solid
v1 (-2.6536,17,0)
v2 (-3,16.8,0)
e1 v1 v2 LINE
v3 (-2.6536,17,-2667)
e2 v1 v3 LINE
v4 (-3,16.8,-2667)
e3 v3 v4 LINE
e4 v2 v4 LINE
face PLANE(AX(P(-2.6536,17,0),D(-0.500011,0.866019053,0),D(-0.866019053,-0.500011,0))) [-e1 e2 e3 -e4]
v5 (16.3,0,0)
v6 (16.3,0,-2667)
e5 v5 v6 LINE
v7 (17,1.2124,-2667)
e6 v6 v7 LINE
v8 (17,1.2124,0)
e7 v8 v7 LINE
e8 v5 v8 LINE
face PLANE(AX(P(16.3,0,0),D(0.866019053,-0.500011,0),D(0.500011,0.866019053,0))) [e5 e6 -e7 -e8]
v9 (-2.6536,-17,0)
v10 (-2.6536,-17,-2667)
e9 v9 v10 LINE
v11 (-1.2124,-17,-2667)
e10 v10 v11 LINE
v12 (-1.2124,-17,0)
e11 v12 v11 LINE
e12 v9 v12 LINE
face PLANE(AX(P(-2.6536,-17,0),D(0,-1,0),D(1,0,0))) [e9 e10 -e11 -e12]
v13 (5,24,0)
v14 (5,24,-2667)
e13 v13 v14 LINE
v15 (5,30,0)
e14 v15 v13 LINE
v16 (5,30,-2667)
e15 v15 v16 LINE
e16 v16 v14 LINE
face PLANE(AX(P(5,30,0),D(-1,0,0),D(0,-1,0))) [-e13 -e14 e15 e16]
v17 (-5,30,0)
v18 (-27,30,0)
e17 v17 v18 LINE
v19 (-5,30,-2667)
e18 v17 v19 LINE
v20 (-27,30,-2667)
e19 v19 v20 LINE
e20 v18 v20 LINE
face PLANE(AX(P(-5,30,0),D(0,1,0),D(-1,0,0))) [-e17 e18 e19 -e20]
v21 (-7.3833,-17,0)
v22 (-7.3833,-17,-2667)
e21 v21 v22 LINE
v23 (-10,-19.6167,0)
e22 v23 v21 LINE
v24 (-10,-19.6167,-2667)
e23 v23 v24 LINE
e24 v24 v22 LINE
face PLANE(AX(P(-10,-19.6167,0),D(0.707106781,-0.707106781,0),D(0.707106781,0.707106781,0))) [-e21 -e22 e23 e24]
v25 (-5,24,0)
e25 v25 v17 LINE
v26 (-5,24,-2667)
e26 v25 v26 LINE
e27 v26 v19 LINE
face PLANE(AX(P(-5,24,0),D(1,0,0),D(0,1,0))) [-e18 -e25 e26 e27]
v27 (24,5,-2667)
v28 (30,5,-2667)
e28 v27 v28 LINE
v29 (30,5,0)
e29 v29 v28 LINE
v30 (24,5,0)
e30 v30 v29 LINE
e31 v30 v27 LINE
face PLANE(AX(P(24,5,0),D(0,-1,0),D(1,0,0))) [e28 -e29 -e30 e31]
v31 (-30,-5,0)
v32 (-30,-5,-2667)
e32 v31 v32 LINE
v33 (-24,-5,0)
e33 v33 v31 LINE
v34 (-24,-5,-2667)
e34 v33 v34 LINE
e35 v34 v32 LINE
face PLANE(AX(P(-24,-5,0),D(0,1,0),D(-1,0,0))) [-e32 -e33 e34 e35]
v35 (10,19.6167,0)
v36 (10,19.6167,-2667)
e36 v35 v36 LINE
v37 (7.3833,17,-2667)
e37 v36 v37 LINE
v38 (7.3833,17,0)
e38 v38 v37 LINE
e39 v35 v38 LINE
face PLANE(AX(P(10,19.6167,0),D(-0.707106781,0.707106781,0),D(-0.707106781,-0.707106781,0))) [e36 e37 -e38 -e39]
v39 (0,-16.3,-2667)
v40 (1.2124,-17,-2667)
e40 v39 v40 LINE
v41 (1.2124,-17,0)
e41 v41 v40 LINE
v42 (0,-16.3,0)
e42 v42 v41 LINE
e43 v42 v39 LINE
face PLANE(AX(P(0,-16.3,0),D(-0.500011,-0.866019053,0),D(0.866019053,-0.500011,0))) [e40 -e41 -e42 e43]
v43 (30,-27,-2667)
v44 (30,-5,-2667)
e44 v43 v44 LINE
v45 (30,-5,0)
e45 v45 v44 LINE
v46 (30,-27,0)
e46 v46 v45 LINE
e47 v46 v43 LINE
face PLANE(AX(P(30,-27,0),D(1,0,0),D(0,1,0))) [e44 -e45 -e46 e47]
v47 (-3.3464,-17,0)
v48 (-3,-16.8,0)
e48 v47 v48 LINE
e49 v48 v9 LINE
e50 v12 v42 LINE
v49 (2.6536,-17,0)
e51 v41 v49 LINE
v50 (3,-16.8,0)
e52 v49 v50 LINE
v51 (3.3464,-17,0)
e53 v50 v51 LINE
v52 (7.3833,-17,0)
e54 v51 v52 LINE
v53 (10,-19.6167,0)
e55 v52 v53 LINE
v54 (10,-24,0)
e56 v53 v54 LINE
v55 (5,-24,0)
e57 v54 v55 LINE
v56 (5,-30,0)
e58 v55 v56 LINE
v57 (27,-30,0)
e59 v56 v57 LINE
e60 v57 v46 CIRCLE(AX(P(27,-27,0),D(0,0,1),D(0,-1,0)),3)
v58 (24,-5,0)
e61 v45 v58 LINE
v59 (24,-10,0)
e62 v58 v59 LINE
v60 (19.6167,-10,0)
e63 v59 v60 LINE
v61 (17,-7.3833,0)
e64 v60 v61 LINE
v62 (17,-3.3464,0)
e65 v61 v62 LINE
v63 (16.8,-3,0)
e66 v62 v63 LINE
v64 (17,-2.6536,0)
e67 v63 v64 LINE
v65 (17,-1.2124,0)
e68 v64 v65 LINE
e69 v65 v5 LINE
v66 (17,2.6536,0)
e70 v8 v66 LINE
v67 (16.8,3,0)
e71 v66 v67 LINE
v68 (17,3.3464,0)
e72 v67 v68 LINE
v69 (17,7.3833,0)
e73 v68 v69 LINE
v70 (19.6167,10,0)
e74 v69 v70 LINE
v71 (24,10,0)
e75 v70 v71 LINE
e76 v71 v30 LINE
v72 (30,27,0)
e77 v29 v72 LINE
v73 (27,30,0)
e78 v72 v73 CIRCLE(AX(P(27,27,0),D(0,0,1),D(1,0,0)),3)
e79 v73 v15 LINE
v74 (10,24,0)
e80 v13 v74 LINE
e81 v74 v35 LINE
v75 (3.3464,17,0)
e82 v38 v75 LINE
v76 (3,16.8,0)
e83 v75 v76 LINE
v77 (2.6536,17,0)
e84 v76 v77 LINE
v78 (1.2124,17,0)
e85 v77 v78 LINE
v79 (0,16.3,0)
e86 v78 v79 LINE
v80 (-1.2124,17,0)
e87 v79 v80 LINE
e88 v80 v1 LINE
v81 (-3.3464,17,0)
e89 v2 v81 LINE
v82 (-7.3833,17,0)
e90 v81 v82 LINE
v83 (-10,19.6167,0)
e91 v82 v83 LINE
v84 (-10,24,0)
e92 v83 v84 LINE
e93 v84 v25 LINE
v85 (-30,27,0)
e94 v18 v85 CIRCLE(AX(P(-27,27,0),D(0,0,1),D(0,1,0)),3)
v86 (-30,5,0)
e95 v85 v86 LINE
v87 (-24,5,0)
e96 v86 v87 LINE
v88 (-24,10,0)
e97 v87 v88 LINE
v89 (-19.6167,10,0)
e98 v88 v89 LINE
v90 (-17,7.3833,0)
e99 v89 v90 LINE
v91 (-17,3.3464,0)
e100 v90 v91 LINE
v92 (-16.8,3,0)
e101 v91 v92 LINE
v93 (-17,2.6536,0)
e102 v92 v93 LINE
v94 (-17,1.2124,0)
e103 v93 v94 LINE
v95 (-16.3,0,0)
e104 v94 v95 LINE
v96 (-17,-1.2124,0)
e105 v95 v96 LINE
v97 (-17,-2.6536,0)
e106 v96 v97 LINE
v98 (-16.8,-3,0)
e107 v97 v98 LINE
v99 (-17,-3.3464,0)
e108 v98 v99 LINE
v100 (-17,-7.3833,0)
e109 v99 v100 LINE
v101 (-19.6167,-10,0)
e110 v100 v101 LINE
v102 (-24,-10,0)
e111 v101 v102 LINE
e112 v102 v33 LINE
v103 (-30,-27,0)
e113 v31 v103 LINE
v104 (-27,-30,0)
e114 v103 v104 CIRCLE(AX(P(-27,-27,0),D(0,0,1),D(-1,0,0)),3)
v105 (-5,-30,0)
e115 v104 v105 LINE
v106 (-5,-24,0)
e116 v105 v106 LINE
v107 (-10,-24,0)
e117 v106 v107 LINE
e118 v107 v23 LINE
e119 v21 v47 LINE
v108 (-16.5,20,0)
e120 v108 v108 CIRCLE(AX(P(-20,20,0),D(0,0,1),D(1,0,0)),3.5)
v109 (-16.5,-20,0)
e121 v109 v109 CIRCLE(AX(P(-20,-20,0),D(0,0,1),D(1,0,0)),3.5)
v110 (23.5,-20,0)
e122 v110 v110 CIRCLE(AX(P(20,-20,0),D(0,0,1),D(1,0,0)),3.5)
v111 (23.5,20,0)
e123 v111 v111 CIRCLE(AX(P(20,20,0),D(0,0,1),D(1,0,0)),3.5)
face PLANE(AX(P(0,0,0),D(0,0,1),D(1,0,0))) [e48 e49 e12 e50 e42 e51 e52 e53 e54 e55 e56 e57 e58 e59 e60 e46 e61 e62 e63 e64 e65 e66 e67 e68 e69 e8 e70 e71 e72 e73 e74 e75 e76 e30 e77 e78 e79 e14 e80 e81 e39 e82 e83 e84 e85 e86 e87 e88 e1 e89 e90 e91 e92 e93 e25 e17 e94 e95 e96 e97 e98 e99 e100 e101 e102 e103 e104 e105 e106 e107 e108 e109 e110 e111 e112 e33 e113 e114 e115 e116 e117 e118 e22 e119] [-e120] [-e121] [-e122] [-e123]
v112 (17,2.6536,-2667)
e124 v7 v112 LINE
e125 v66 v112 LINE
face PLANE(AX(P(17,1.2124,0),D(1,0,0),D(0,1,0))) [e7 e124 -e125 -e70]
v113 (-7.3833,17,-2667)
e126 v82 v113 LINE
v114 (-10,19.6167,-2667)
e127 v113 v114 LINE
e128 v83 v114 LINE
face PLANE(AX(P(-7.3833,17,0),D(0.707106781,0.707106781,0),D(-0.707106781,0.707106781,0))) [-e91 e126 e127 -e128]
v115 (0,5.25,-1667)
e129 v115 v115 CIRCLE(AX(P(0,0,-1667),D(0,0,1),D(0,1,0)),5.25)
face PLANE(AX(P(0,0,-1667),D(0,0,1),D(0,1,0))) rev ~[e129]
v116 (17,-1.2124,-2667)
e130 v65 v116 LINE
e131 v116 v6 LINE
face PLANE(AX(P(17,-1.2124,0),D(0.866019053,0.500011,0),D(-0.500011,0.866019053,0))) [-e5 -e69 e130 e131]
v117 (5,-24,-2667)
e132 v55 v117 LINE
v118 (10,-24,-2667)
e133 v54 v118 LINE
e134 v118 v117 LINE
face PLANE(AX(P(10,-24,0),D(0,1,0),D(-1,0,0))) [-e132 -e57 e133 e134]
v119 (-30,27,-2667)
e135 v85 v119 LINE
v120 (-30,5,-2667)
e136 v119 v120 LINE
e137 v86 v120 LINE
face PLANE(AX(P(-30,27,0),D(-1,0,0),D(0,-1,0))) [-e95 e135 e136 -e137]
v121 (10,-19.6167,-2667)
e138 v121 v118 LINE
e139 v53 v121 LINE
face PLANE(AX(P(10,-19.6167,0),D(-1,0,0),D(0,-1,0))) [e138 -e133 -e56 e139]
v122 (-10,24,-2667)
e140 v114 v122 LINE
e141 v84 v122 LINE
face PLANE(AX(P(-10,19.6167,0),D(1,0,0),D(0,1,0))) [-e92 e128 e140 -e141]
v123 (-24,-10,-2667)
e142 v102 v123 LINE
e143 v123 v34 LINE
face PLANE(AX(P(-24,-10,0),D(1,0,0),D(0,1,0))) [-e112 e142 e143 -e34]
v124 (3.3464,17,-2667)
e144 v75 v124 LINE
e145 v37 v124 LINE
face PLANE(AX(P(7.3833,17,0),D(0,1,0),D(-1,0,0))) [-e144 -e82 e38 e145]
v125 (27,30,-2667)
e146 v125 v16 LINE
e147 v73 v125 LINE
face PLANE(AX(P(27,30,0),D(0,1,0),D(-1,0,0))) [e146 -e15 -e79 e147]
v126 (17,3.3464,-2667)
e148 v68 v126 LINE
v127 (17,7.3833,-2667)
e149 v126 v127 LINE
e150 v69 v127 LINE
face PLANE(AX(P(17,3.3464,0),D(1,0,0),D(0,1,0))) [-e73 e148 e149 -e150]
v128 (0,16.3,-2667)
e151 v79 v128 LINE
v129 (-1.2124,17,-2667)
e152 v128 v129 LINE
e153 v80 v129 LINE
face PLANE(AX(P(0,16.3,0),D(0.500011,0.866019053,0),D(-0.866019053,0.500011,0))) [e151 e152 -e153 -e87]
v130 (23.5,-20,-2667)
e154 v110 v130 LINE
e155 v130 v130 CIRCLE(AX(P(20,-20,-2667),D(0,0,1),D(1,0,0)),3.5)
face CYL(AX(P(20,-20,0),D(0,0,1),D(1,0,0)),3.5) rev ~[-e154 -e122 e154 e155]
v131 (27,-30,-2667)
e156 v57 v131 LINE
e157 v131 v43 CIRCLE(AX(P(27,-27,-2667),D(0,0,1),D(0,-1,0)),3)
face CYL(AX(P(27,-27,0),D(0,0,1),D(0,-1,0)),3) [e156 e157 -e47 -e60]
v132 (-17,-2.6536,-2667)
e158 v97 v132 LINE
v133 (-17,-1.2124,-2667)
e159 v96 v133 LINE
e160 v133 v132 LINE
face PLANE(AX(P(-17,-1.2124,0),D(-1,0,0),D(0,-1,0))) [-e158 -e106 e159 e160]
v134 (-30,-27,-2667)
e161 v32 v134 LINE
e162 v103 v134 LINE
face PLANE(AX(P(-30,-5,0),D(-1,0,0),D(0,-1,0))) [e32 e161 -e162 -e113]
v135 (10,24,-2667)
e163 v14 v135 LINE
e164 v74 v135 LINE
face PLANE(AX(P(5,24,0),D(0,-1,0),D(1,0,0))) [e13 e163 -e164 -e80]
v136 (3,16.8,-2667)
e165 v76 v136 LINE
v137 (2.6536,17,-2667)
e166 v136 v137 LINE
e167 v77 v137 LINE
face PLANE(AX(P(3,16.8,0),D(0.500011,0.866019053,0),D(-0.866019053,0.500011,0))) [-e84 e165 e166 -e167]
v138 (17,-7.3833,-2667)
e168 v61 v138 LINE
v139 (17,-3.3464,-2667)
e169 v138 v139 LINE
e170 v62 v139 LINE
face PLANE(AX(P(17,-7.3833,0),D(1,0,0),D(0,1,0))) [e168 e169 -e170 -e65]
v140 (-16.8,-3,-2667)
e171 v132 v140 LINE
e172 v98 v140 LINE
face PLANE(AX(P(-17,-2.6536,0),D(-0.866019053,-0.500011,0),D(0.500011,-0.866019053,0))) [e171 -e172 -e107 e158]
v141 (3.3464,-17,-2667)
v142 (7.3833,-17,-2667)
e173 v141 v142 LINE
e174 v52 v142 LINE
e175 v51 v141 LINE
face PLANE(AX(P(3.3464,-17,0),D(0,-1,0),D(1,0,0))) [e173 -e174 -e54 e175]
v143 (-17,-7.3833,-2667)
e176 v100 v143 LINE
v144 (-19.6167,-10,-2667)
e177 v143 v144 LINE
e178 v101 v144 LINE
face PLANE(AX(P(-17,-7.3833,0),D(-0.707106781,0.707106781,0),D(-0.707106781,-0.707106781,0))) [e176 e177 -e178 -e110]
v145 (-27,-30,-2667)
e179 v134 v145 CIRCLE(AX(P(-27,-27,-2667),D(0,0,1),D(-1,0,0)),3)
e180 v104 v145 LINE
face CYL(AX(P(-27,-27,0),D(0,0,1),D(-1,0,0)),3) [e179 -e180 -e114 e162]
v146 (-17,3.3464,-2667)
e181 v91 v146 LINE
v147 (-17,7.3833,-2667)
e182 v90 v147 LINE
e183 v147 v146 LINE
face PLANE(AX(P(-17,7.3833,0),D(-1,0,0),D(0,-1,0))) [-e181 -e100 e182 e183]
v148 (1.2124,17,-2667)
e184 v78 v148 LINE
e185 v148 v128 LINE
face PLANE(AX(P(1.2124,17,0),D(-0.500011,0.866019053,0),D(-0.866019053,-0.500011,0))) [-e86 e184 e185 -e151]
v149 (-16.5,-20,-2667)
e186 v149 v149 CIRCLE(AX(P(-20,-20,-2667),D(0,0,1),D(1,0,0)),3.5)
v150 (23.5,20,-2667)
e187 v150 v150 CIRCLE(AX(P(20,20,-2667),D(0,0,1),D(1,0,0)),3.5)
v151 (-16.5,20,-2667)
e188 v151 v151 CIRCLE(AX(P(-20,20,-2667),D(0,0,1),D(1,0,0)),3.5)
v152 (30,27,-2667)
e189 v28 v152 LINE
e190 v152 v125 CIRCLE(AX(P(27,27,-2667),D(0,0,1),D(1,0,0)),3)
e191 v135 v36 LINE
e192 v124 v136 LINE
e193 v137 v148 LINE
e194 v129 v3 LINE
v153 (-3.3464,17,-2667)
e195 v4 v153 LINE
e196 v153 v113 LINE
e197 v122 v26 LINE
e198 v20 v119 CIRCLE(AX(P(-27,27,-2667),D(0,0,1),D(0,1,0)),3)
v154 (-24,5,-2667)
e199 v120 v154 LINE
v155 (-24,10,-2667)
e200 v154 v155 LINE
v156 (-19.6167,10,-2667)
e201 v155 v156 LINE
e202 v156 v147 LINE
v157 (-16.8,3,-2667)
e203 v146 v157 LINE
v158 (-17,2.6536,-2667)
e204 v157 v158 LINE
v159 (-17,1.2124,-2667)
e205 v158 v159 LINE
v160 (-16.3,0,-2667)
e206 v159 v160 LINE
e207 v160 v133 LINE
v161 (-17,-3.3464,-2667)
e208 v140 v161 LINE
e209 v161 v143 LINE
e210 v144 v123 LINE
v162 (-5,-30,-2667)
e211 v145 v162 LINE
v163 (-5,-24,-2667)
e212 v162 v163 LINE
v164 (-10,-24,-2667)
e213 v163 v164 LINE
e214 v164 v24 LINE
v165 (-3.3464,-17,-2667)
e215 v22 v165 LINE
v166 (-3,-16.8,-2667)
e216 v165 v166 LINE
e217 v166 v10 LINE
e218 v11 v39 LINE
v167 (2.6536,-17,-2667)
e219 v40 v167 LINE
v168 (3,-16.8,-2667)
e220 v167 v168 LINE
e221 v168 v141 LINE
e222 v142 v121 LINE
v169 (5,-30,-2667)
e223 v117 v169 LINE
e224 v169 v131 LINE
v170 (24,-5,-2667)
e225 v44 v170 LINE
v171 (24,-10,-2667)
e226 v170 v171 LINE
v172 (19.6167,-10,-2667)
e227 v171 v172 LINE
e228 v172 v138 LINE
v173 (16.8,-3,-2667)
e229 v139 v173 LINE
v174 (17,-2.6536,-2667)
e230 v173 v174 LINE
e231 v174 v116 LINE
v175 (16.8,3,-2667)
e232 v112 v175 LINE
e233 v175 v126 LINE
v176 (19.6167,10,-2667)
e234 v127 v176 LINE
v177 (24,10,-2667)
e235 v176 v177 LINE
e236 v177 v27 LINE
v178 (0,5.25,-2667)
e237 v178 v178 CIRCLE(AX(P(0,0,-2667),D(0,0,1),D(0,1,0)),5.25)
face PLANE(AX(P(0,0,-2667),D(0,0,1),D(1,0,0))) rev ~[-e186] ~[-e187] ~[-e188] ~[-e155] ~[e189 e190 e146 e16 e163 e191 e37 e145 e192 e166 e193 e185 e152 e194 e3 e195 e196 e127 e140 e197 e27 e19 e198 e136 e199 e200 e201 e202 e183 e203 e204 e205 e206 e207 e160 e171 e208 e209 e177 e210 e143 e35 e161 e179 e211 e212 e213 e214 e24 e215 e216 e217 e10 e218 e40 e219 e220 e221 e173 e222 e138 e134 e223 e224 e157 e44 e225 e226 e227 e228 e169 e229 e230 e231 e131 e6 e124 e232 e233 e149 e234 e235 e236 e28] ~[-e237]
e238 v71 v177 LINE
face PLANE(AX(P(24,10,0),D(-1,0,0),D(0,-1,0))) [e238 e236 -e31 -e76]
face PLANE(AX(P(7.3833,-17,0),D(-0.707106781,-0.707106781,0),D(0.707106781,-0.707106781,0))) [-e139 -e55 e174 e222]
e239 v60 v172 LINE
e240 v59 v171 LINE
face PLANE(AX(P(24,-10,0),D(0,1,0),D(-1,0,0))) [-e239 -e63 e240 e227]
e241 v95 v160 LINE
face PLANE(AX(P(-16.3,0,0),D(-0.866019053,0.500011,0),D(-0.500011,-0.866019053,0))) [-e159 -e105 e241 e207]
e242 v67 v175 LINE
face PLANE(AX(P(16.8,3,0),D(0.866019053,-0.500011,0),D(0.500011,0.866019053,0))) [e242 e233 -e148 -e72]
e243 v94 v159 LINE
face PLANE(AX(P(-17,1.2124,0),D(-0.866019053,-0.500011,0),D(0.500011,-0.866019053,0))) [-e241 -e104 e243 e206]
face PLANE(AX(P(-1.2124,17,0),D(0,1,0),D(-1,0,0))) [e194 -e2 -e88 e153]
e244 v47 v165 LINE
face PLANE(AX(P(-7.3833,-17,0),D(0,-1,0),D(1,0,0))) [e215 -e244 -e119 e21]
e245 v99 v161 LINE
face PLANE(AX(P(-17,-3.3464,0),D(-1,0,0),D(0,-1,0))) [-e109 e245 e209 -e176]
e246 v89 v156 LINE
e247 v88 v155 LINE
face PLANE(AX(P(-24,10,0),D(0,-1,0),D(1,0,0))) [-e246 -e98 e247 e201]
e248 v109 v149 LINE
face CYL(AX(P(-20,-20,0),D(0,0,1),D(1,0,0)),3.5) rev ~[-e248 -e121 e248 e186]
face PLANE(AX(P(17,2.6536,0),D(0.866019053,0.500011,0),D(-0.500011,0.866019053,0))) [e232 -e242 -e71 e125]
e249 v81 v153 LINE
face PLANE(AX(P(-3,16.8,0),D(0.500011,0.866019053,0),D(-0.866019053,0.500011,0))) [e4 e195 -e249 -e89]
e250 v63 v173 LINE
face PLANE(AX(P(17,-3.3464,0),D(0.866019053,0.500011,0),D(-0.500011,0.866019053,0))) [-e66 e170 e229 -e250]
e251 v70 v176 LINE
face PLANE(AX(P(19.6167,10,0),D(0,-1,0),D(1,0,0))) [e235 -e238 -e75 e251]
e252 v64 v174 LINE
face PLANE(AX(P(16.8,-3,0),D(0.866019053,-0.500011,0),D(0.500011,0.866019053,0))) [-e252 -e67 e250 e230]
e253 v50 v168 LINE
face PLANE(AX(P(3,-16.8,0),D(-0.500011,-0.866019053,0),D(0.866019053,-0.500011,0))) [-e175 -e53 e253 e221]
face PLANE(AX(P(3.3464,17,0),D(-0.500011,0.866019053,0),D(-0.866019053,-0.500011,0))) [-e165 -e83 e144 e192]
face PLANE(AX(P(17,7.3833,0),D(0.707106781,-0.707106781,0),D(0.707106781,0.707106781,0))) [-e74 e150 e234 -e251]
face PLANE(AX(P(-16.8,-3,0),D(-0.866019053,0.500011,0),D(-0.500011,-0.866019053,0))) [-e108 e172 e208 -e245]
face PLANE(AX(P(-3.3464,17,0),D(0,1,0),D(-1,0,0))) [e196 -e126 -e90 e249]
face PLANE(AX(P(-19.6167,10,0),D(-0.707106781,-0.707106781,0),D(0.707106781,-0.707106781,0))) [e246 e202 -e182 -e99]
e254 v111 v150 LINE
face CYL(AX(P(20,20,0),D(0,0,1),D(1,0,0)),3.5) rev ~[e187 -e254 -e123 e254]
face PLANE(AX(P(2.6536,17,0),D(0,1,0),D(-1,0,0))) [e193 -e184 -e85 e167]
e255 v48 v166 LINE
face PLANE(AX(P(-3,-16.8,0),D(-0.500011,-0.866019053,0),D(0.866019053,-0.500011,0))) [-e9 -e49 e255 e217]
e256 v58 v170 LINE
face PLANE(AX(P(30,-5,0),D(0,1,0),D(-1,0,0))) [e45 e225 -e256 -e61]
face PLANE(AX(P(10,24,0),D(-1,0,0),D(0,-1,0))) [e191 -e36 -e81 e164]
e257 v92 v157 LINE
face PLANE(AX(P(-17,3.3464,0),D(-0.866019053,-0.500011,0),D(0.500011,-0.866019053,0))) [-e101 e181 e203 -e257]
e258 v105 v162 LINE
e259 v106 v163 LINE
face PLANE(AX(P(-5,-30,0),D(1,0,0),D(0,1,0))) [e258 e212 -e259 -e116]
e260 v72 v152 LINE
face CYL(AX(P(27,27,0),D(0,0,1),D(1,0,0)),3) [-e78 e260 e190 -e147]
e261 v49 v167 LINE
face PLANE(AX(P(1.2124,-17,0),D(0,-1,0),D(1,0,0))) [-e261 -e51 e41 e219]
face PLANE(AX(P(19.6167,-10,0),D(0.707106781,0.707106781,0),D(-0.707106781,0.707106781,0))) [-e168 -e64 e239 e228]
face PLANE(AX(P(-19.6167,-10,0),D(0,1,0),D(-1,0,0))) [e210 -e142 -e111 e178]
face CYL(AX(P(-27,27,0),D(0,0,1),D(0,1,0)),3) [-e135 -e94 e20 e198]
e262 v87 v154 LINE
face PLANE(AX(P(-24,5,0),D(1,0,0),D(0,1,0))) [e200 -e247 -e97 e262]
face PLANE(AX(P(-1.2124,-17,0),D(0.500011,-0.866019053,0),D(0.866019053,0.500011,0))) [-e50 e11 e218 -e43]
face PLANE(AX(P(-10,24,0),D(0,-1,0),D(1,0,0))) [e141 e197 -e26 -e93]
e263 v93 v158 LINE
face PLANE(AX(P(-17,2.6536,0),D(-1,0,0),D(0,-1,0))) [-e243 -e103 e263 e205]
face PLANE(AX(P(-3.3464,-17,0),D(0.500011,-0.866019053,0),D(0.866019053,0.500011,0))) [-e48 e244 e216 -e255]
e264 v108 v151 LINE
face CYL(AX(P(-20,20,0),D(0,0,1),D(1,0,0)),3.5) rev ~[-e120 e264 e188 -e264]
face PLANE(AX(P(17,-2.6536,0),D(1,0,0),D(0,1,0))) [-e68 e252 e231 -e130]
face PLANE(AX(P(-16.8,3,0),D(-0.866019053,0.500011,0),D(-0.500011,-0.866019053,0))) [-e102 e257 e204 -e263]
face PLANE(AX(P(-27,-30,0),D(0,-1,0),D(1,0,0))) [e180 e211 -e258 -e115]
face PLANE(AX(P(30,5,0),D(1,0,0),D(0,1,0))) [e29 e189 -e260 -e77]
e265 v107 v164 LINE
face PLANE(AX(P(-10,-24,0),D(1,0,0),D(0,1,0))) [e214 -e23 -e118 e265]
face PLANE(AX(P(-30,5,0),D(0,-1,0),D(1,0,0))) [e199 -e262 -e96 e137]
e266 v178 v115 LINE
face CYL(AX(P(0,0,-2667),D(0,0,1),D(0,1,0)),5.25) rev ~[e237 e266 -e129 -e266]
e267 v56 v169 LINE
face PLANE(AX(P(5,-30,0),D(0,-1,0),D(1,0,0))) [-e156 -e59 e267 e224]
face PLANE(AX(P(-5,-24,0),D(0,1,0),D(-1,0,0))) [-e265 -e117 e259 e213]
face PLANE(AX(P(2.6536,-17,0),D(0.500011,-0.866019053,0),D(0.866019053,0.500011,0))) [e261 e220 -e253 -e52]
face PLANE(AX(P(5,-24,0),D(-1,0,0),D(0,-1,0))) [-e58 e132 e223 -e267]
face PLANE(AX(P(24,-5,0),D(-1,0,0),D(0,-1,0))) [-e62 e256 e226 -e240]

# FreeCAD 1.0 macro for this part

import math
import FreeCAD as App
import Part
import Sketcher
from FreeCAD import Vector
Q = App.Units.Quantity

doc = App.newDocument("Part")
body = doc.addObject("PartDesign::Body", "Body")

# Sketch on XY plane
sketch1 = body.newObject("Sketcher::SketchObject", "Sketch")
sketch1.AttachmentSupport = (doc.getObject("XY_Plane"), [""])
sketch1.MapMode = "FlatFace"
sketch1.addGeometry(Part.LineSegment(Vector(-30, -5, 0), Vector(-30, -27, 0)), False)
sketch1.addGeometry(Part.ArcOfCircle(Part.Circle(Vector(-27, -27, 0), Vector(0, 0, 1), 3), math.radians(180), math.radians(270)), False)
sketch1.addGeometry(Part.LineSegment(Vector(-27, -30, 0), Vector(-5, -30, 0)), False)
sketch1.addGeometry(Part.LineSegment(Vector(-5, -30, 0), Vector(-5, -24, 0)), False)
sketch1.addGeometry(Part.LineSegment(Vector(-5, -24, 0), Vector(-10, -24, 0)), False)
sketch1.addGeometry(Part.LineSegment(Vector(-10, -24, 0), Vector(-10, -19.62, 0)), False)
sketch1.addGeometry(Part.LineSegment(Vector(-10, -19.62, 0), Vector(-7.38, -17, 0)), False)
sketch1.addGeometry(Part.LineSegment(Vector(-7.38, -17, 0), Vector(-3.35, -17, 0)), False)
sketch1.addGeometry(Part.LineSegment(Vector(-3.35, -17, 0), Vector(-3, -16.8, 0)), False)
sketch1.addGeometry(Part.LineSegment(Vector(-3, -16.8, 0), Vector(-2.65, -17, 0)), False)
sketch1.addGeometry(Part.LineSegment(Vector(-2.65, -17, 0), Vector(-1.21, -17, 0)), False)
sketch1.addGeometry(Part.LineSegment(Vector(-1.21, -17, 0), Vector(0, -16.3, 0)), False)
sketch1.addGeometry(Part.LineSegment(Vector(0, -16.3, 0), Vector(1.21, -17, 0)), False)
sketch1.addGeometry(Part.LineSegment(Vector(1.21, -17, 0), Vector(2.65, -17, 0)), False)
sketch1.addGeometry(Part.LineSegment(Vector(2.65, -17, 0), Vector(3, -16.8, 0)), False)
sketch1.addGeometry(Part.LineSegment(Vector(3, -16.8, 0), Vector(3.35, -17, 0)), False)
sketch1.addGeometry(Part.LineSegment(Vector(3.35, -17, 0), Vector(7.38, -17, 0)), False)
sketch1.addGeometry(Part.LineSegment(Vector(7.38, -17, 0), Vector(10, -19.62, 0)), False)
sketch1.addGeometry(Part.LineSegment(Vector(10, -19.62, 0), Vector(10, -24, 0)), False)
sketch1.addGeometry(Part.LineSegment(Vector(10, -24, 0), Vector(5, -24, 0)), False)
sketch1.addGeometry(Part.LineSegment(Vector(5, -24, 0), Vector(5, -30, 0)), False)
sketch1.addGeometry(Part.LineSegment(Vector(5, -30, 0), Vector(27, -30, 0)), False)
sketch1.addGeometry(Part.ArcOfCircle(Part.Circle(Vector(27, -27, 0), Vector(0, 0, 1), 3), math.radians(-90), math.radians(0)), False)
sketch1.addGeometry(Part.LineSegment(Vector(30, -27, 0), Vector(30, -5, 0)), False)
sketch1.addGeometry(Part.LineSegment(Vector(30, -5, 0), Vector(24, -5, 0)), False)
sketch1.addGeometry(Part.LineSegment(Vector(24, -5, 0), Vector(24, -10, 0)), False)
sketch1.addGeometry(Part.LineSegment(Vector(24, -10, 0), Vector(19.62, -10, 0)), False)
sketch1.addGeometry(Part.LineSegment(Vector(19.62, -10, 0), Vector(17, -7.38, 0)), False)
sketch1.addGeometry(Part.LineSegment(Vector(17, -7.38, 0), Vector(17, -3.35, 0)), False)
sketch1.addGeometry(Part.LineSegment(Vector(17, -3.35, 0), Vector(16.8, -3, 0)), False)
sketch1.addGeometry(Part.LineSegment(Vector(16.8, -3, 0), Vector(17, -2.65, 0)), False)
sketch1.addGeometry(Part.LineSegment(Vector(17, -2.65, 0), Vector(17, -1.21, 0)), False)
sketch1.addGeometry(Part.LineSegment(Vector(17, -1.21, 0), Vector(16.3, 0, 0)), False)
sketch1.addGeometry(Part.LineSegment(Vector(16.3, 0, 0), Vector(17, 1.21, 0)), False)
sketch1.addGeometry(Part.LineSegment(Vector(17, 1.21, 0), Vector(17, 2.65, 0)), False)
sketch1.addGeometry(Part.LineSegment(Vector(17, 2.65, 0), Vector(16.8, 3, 0)), False)
sketch1.addGeometry(Part.LineSegment(Vector(16.8, 3, 0), Vector(17, 3.35, 0)), False)
sketch1.addGeometry(Part.LineSegment(Vector(17, 3.35, 0), Vector(17, 7.38, 0)), False)
sketch1.addGeometry(Part.LineSegment(Vector(17, 7.38, 0), Vector(19.62, 10, 0)), False)
sketch1.addGeometry(Part.LineSegment(Vector(19.62, 10, 0), Vector(24, 10, 0)), False)
sketch1.addGeometry(Part.LineSegment(Vector(24, 10, 0), Vector(24, 5, 0)), False)
sketch1.addGeometry(Part.LineSegment(Vector(24, 5, 0), Vector(30, 5, 0)), False)
sketch1.addGeometry(Part.LineSegment(Vector(30, 5, 0), Vector(30, 27, 0)), False)
sketch1.addGeometry(Part.ArcOfCircle(Part.Circle(Vector(27, 27, 0), Vector(0, 0, 1), 3), math.radians(0), math.radians(90)), False)
sketch1.addGeometry(Part.LineSegment(Vector(27, 30, 0), Vector(5, 30, 0)), False)
sketch1.addGeometry(Part.LineSegment(Vector(5, 30, 0), Vector(5, 24, 0)), False)
sketch1.addGeometry(Part.LineSegment(Vector(5, 24, 0), Vector(10, 24, 0)), False)
sketch1.addGeometry(Part.LineSegment(Vector(10, 24, 0), Vector(10, 19.62, 0)), False)
sketch1.addGeometry(Part.LineSegment(Vector(10, 19.62, 0), Vector(7.38, 17, 0)), False)
sketch1.addGeometry(Part.LineSegment(Vector(7.38, 17, 0), Vector(3.35, 17, 0)), False)
sketch1.addGeometry(Part.LineSegment(Vector(3.35, 17, 0), Vector(3, 16.8, 0)), False)
sketch1.addGeometry(Part.LineSegment(Vector(3, 16.8, 0), Vector(2.65, 17, 0)), False)
sketch1.addGeometry(Part.LineSegment(Vector(2.65, 17, 0), Vector(1.21, 17, 0)), False)
sketch1.addGeometry(Part.LineSegment(Vector(1.21, 17, 0), Vector(0, 16.3, 0)), False)
sketch1.addGeometry(Part.LineSegment(Vector(0, 16.3, 0), Vector(-1.21, 17, 0)), False)
sketch1.addGeometry(Part.LineSegment(Vector(-1.21, 17, 0), Vector(-2.65, 17, 0)), False)
sketch1.addGeometry(Part.LineSegment(Vector(-2.65, 17, 0), Vector(-3, 16.8, 0)), False)
sketch1.addGeometry(Part.LineSegment(Vector(-3, 16.8, 0), Vector(-3.35, 17, 0)), False)
sketch1.addGeometry(Part.LineSegment(Vector(-3.35, 17, 0), Vector(-7.38, 17, 0)), False)
sketch1.addGeometry(Part.LineSegment(Vector(-7.38, 17, 0), Vector(-10, 19.62, 0)), False)
sketch1.addGeometry(Part.LineSegment(Vector(-10, 19.62, 0), Vector(-10, 24, 0)), False)
sketch1.addGeometry(Part.LineSegment(Vector(-10, 24, 0), Vector(-5, 24, 0)), False)
sketch1.addGeometry(Part.LineSegment(Vector(-5, 24, 0), Vector(-5, 30, 0)), False)
sketch1.addGeometry(Part.LineSegment(Vector(-5, 30, 0), Vector(-27, 30, 0)), False)
sketch1.addGeometry(Part.ArcOfCircle(Part.Circle(Vector(-27, 27, 0), Vector(0, 0, 1), 3), math.radians(90), math.radians(180)), False)
sketch1.addGeometry(Part.LineSegment(Vector(-30, 27, 0), Vector(-30, 5, 0)), False)
sketch1.addGeometry(Part.LineSegment(Vector(-30, 5, 0), Vector(-24, 5, 0)), False)
sketch1.addGeometry(Part.LineSegment(Vector(-24, 5, 0), Vector(-24, 10, 0)), False)
sketch1.addGeometry(Part.LineSegment(Vector(-24, 10, 0), Vector(-19.62, 10, 0)), False)
sketch1.addGeometry(Part.LineSegment(Vector(-19.62, 10, 0), Vector(-17, 7.38, 0)), False)
sketch1.addGeometry(Part.LineSegment(Vector(-17, 7.38, 0), Vector(-17, 3.35, 0)), False)
sketch1.addGeometry(Part.LineSegment(Vector(-17, 3.35, 0), Vector(-16.8, 3, 0)), False)
sketch1.addGeometry(Part.LineSegment(Vector(-16.8, 3, 0), Vector(-17, 2.65, 0)), False)
sketch1.addGeometry(Part.LineSegment(Vector(-17, 2.65, 0), Vector(-17, 1.21, 0)), False)
sketch1.addGeometry(Part.LineSegment(Vector(-17, 1.21, 0), Vector(-16.3, 0, 0)), False)
sketch1.addGeometry(Part.LineSegment(Vector(-16.3, 0, 0), Vector(-17, -1.21, 0)), False)
sketch1.addGeometry(Part.LineSegment(Vector(-17, -1.21, 0), Vector(-17, -2.65, 0)), False)
sketch1.addGeometry(Part.LineSegment(Vector(-17, -2.65, 0), Vector(-16.8, -3, 0)), False)
sketch1.addGeometry(Part.LineSegment(Vector(-16.8, -3, 0), Vector(-17, -3.35, 0)), False)
sketch1.addGeometry(Part.LineSegment(Vector(-17, -3.35, 0), Vector(-17, -7.38, 0)), False)
sketch1.addGeometry(Part.LineSegment(Vector(-17, -7.38, 0), Vector(-19.62, -10, 0)), False)
sketch1.addGeometry(Part.LineSegment(Vector(-19.62, -10, 0), Vector(-24, -10, 0)), False)
sketch1.addGeometry(Part.LineSegment(Vector(-24, -10, 0), Vector(-24, -5, 0)), False)
sketch1.addGeometry(Part.LineSegment(Vector(-24, -5, 0), Vector(-30, -5, 0)), False)
sketch1.addGeometry(Part.Circle(Vector(-20, -20, 0), Vector(0, 0, 1), 3.5), False)
sketch1.addGeometry(Part.Circle(Vector(20, -20, 0), Vector(0, 0, 1), 3.5), False)
sketch1.addGeometry(Part.Circle(Vector(-20, 20, 0), Vector(0, 0, 1), 3.5), False)
sketch1.addGeometry(Part.Circle(Vector(20, 20, 0), Vector(0, 0, 1), 3.5), False)
sketch1.addConstraint(Sketcher.Constraint("Tangent", 0, 2, 1, 1))
sketch1.addConstraint(Sketcher.Constraint("Tangent", 1, 2, 2, 1))
sketch1.addConstraint(Sketcher.Constraint("Coincident", 2, 2, 3, 1))
sketch1.addConstraint(Sketcher.Constraint("Coincident", 3, 2, 4, 1))
sketch1.addConstraint(Sketcher.Constraint("Coincident", 4, 2, 5, 1))
sketch1.addConstraint(Sketcher.Constraint("Coincident", 5, 2, 6, 1))
sketch1.addConstraint(Sketcher.Constraint("Coincident", 6, 2, 7, 1))
sketch1.addConstraint(Sketcher.Constraint("Coincident", 7, 2, 8, 1))
sketch1.addConstraint(Sketcher.Constraint("Coincident", 8, 2, 9, 1))
sketch1.addConstraint(Sketcher.Constraint("Coincident", 9, 2, 10, 1))
sketch1.addConstraint(Sketcher.Constraint("Coincident", 10, 2, 11, 1))
sketch1.addConstraint(Sketcher.Constraint("Coincident", 11, 2, 12, 1))
sketch1.addConstraint(Sketcher.Constraint("Coincident", 12, 2, 13, 1))
sketch1.addConstraint(Sketcher.Constraint("Coincident", 13, 2, 14, 1))
sketch1.addConstraint(Sketcher.Constraint("Coincident", 14, 2, 15, 1))
sketch1.addConstraint(Sketcher.Constraint("Coincident", 15, 2, 16, 1))
sketch1.addConstraint(Sketcher.Constraint("Coincident", 16, 2, 17, 1))
sketch1.addConstraint(Sketcher.Constraint("Coincident", 17, 2, 18, 1))
sketch1.addConstraint(Sketcher.Constraint("Coincident", 18, 2, 19, 1))
sketch1.addConstraint(Sketcher.Constraint("Coincident", 19, 2, 20, 1))
sketch1.addConstraint(Sketcher.Constraint("Coincident", 20, 2, 21, 1))
sketch1.addConstraint(Sketcher.Constraint("Tangent", 21, 2, 22, 1))
sketch1.addConstraint(Sketcher.Constraint("Tangent", 22, 2, 23, 1))
sketch1.addConstraint(Sketcher.Constraint("Coincident", 23, 2, 24, 1))
sketch1.addConstraint(Sketcher.Constraint("Coincident", 24, 2, 25, 1))
sketch1.addConstraint(Sketcher.Constraint("Coincident", 25, 2, 26, 1))
sketch1.addConstraint(Sketcher.Constraint("Coincident", 26, 2, 27, 1))
sketch1.addConstraint(Sketcher.Constraint("Coincident", 27, 2, 28, 1))
sketch1.addConstraint(Sketcher.Constraint("Coincident", 28, 2, 29, 1))
sketch1.addConstraint(Sketcher.Constraint("Coincident", 29, 2, 30, 1))
sketch1.addConstraint(Sketcher.Constraint("Coincident", 30, 2, 31, 1))
sketch1.addConstraint(Sketcher.Constraint("Coincident", 31, 2, 32, 1))
sketch1.addConstraint(Sketcher.Constraint("Coincident", 32, 2, 33, 1))
sketch1.addConstraint(Sketcher.Constraint("Coincident", 33, 2, 34, 1))
sketch1.addConstraint(Sketcher.Constraint("Coincident", 34, 2, 35, 1))
sketch1.addConstraint(Sketcher.Constraint("Coincident", 35, 2, 36, 1))
sketch1.addConstraint(Sketcher.Constraint("Coincident", 36, 2, 37, 1))
sketch1.addConstraint(Sketcher.Constraint("Coincident", 37, 2, 38, 1))
sketch1.addConstraint(Sketcher.Constraint("Coincident", 38, 2, 39, 1))
sketch1.addConstraint(Sketcher.Constraint("Coincident", 39, 2, 40, 1))
sketch1.addConstraint(Sketcher.Constraint("Coincident", 40, 2, 41, 1))
sketch1.addConstraint(Sketcher.Constraint("Coincident", 41, 2, 42, 1))
sketch1.addConstraint(Sketcher.Constraint("Tangent", 42, 2, 43, 1))
sketch1.addConstraint(Sketcher.Constraint("Tangent", 43, 2, 44, 1))
sketch1.addConstraint(Sketcher.Constraint("Coincident", 44, 2, 45, 1))
sketch1.addConstraint(Sketcher.Constraint("Coincident", 45, 2, 46, 1))
sketch1.addConstraint(Sketcher.Constraint("Coincident", 46, 2, 47, 1))
sketch1.addConstraint(Sketcher.Constraint("Coincident", 47, 2, 48, 1))
sketch1.addConstraint(Sketcher.Constraint("Coincident", 48, 2, 49, 1))
sketch1.addConstraint(Sketcher.Constraint("Coincident", 49, 2, 50, 1))
sketch1.addConstraint(Sketcher.Constraint("Coincident", 50, 2, 51, 1))
sketch1.addConstraint(Sketcher.Constraint("Coincident", 51, 2, 52, 1))
sketch1.addConstraint(Sketcher.Constraint("Coincident", 52, 2, 53, 1))
sketch1.addConstraint(Sketcher.Constraint("Coincident", 53, 2, 54, 1))
sketch1.addConstraint(Sketcher.Constraint("Coincident", 54, 2, 55, 1))
sketch1.addConstraint(Sketcher.Constraint("Coincident", 55, 2, 56, 1))
sketch1.addConstraint(Sketcher.Constraint("Coincident", 56, 2, 57, 1))
sketch1.addConstraint(Sketcher.Constraint("Coincident", 57, 2, 58, 1))
sketch1.addConstraint(Sketcher.Constraint("Coincident", 58, 2, 59, 1))
sketch1.addConstraint(Sketcher.Constraint("Coincident", 59, 2, 60, 1))
sketch1.addConstraint(Sketcher.Constraint("Coincident", 60, 2, 61, 1))
sketch1.addConstraint(Sketcher.Constraint("Coincident", 61, 2, 62, 1))
sketch1.addConstraint(Sketcher.Constraint("Coincident", 62, 2, 63, 1))
sketch1.addConstraint(Sketcher.Constraint("Tangent", 63, 2, 64, 1))
sketch1.addConstraint(Sketcher.Constraint("Tangent", 64, 2, 65, 1))
sketch1.addConstraint(Sketcher.Constraint("Coincident", 65, 2, 66, 1))
sketch1.addConstraint(Sketcher.Constraint("Coincident", 66, 2, 67, 1))
sketch1.addConstraint(Sketcher.Constraint("Coincident", 67, 2, 68, 1))
sketch1.addConstraint(Sketcher.Constraint("Coincident", 68, 2, 69, 1))
sketch1.addConstraint(Sketcher.Constraint("Coincident", 69, 2, 70, 1))
sketch1.addConstraint(Sketcher.Constraint("Coincident", 70, 2, 71, 1))
sketch1.addConstraint(Sketcher.Constraint("Coincident", 71, 2, 72, 1))
sketch1.addConstraint(Sketcher.Constraint("Coincident", 72, 2, 73, 1))
sketch1.addConstraint(Sketcher.Constraint("Coincident", 73, 2, 74, 1))
sketch1.addConstraint(Sketcher.Constraint("Coincident", 74, 2, 75, 1))
sketch1.addConstraint(Sketcher.Constraint("Coincident", 75, 2, 76, 1))
sketch1.addConstraint(Sketcher.Constraint("Coincident", 76, 2, 77, 1))
sketch1.addConstraint(Sketcher.Constraint("Coincident", 77, 2, 78, 1))
sketch1.addConstraint(Sketcher.Constraint("Coincident", 78, 2, 79, 1))
sketch1.addConstraint(Sketcher.Constraint("Coincident", 79, 2, 80, 1))
sketch1.addConstraint(Sketcher.Constraint("Coincident", 80, 2, 81, 1))
sketch1.addConstraint(Sketcher.Constraint("Coincident", 81, 2, 82, 1))
sketch1.addConstraint(Sketcher.Constraint("Coincident", 82, 2, 83, 1))
sketch1.addConstraint(Sketcher.Constraint("Coincident", 83, 2, 0, 1))
sketch1.addConstraint(Sketcher.Constraint("Vertical", 0))
sketch1.addConstraint(Sketcher.Constraint("Horizontal", 2))
sketch1.addConstraint(Sketcher.Constraint("Vertical", 3))
sketch1.addConstraint(Sketcher.Constraint("Horizontal", 4))
sketch1.addConstraint(Sketcher.Constraint("Vertical", 5))
sketch1.addConstraint(Sketcher.Constraint("Horizontal", 7))
sketch1.addConstraint(Sketcher.Constraint("Horizontal", 10))
sketch1.addConstraint(Sketcher.Constraint("Horizontal", 13))
sketch1.addConstraint(Sketcher.Constraint("Horizontal", 16))
sketch1.addConstraint(Sketcher.Constraint("Vertical", 18))
sketch1.addConstraint(Sketcher.Constraint("Horizontal", 19))
sketch1.addConstraint(Sketcher.Constraint("Vertical", 20))
sketch1.addConstraint(Sketcher.Constraint("Horizontal", 21))
sketch1.addConstraint(Sketcher.Constraint("Vertical", 23))
sketch1.addConstraint(Sketcher.Constraint("Horizontal", 24))
sketch1.addConstraint(Sketcher.Constraint("Vertical", 25))
sketch1.addConstraint(Sketcher.Constraint("Horizontal", 26))
sketch1.addConstraint(Sketcher.Constraint("Vertical", 28))
sketch1.addConstraint(Sketcher.Constraint("Vertical", 31))
sketch1.addConstraint(Sketcher.Constraint("Vertical", 34))
sketch1.addConstraint(Sketcher.Constraint("Vertical", 37))
sketch1.addConstraint(Sketcher.Constraint("Horizontal", 39))
sketch1.addConstraint(Sketcher.Constraint("Vertical", 40))
sketch1.addConstraint(Sketcher.Constraint("Horizontal", 41))
sketch1.addConstraint(Sketcher.Constraint("Vertical", 42))
sketch1.addConstraint(Sketcher.Constraint("Horizontal", 44))
sketch1.addConstraint(Sketcher.Constraint("Vertical", 45))
sketch1.addConstraint(Sketcher.Constraint("Horizontal", 46))
sketch1.addConstraint(Sketcher.Constraint("Vertical", 47))
sketch1.addConstraint(Sketcher.Constraint("Horizontal", 49))
sketch1.addConstraint(Sketcher.Constraint("Horizontal", 52))
sketch1.addConstraint(Sketcher.Constraint("Horizontal", 55))
sketch1.addConstraint(Sketcher.Constraint("Horizontal", 58))
sketch1.addConstraint(Sketcher.Constraint("Vertical", 60))
sketch1.addConstraint(Sketcher.Constraint("Horizontal", 61))
sketch1.addConstraint(Sketcher.Constraint("Vertical", 62))
sketch1.addConstraint(Sketcher.Constraint("Horizontal", 63))
sketch1.addConstraint(Sketcher.Constraint("Vertical", 65))
sketch1.addConstraint(Sketcher.Constraint("Horizontal", 66))
sketch1.addConstraint(Sketcher.Constraint("Vertical", 67))
sketch1.addConstraint(Sketcher.Constraint("Horizontal", 68))
sketch1.addConstraint(Sketcher.Constraint("Vertical", 70))
sketch1.addConstraint(Sketcher.Constraint("Vertical", 73))
sketch1.addConstraint(Sketcher.Constraint("Vertical", 76))
sketch1.addConstraint(Sketcher.Constraint("Vertical", 79))
sketch1.addConstraint(Sketcher.Constraint("Horizontal", 81))
sketch1.addConstraint(Sketcher.Constraint("Vertical", 82))
sketch1.addConstraint(Sketcher.Constraint("Horizontal", 83))
sketch1.addConstraint(Sketcher.Constraint("Equal", 1, 22))
sketch1.addConstraint(Sketcher.Constraint("Equal", 22, 43))
sketch1.addConstraint(Sketcher.Constraint("Equal", 43, 64))
sketch1.addConstraint(Sketcher.Constraint("Equal", 84, 85))
sketch1.addConstraint(Sketcher.Constraint("Equal", 85, 86))
sketch1.addConstraint(Sketcher.Constraint("Equal", 86, 87))
sketch1.addConstraint(Sketcher.Constraint("Symmetric", 1, 3, 43, 3, -1, 1))
sketch1.addConstraint(Sketcher.Constraint("Symmetric", 22, 3, 64, 3, -1, 1))
sketch1.addConstraint(Sketcher.Constraint("Symmetric", 85, 3, 86, 3, -1, 1))
sketch1.addConstraint(Sketcher.Constraint("Symmetric", 84, 3, 87, 3, -1, 1))
sketch1.addConstraint(Sketcher.Constraint("Symmetric", 3, 2, 45, 2, -1, 1))
sketch1.addConstraint(Sketcher.Constraint("Symmetric", 5, 2, 47, 2, -1, 1))
sketch1.addConstraint(Sketcher.Constraint("Symmetric", 6, 2, 48, 2, -1, 1))
sketch1.addConstraint(Sketcher.Constraint("Symmetric", 8, 2, 50, 2, -1, 1))
sketch1.addConstraint(Sketcher.Constraint("Symmetric", 9, 2, 51, 2, -1, 1))
sketch1.addConstraint(Sketcher.Constraint("Symmetric", 11, 2, 53, 2, -1, 1))
sketch1.addConstraint(Sketcher.Constraint("Symmetric", 12, 2, 54, 2, -1, 1))
sketch1.addConstraint(Sketcher.Constraint("Symmetric", 14, 2, 56, 2, -1, 1))
sketch1.addConstraint(Sketcher.Constraint("Symmetric", 15, 2, 57, 2, -1, 1))
sketch1.addConstraint(Sketcher.Constraint("Symmetric", 17, 2, 59, 2, -1, 1))
sketch1.addConstraint(Sketcher.Constraint("Symmetric", 19, 2, 61, 2, -1, 1))
sketch1.addConstraint(Sketcher.Constraint("Symmetric", 24, 2, 66, 2, -1, 1))
sketch1.addConstraint(Sketcher.Constraint("Symmetric", 26, 2, 68, 2, -1, 1))
sketch1.addConstraint(Sketcher.Constraint("Symmetric", 27, 2, 69, 2, -1, 1))
sketch1.addConstraint(Sketcher.Constraint("Symmetric", 29, 2, 71, 2, -1, 1))
sketch1.addConstraint(Sketcher.Constraint("Symmetric", 30, 2, 72, 2, -1, 1))
sketch1.addConstraint(Sketcher.Constraint("Symmetric", 32, 2, 74, 2, -1, 1))
sketch1.addConstraint(Sketcher.Constraint("Symmetric", 33, 2, 75, 2, -1, 1))
sketch1.addConstraint(Sketcher.Constraint("Symmetric", 35, 2, 77, 2, -1, 1))
sketch1.addConstraint(Sketcher.Constraint("Symmetric", 36, 2, 78, 2, -1, 1))
sketch1.addConstraint(Sketcher.Constraint("Symmetric", 38, 2, 80, 2, -1, 1))
sketch1.addConstraint(Sketcher.Constraint("Symmetric", 40, 2, 82, 2, -1, 1))
sketch1.addConstraint(Sketcher.Constraint("Symmetric", 1, 3, 22, 3, -2))
sketch1.addConstraint(Sketcher.Constraint("Symmetric", 84, 3, 85, 3, -2))
sketch1.addConstraint(Sketcher.Constraint("Symmetric", 10, 2, 12, 2, -2))
sketch1.addConstraint(Sketcher.Constraint("Symmetric", 8, 2, 14, 2, -2))
sketch1.addConstraint(Sketcher.Constraint("Symmetric", 7, 2, 15, 2, -2))
sketch1.addConstraint(Sketcher.Constraint("Symmetric", 5, 2, 17, 2, -2))
sketch1.addConstraint(Sketcher.Constraint("Symmetric", 3, 2, 19, 2, -2))
sketch1.addConstraint(Sketcher.Constraint("Symmetric", 40, 2, 66, 2, -2))
sketch1.addConstraint(Sketcher.Constraint("Symmetric", 38, 2, 68, 2, -2))
sketch1.addConstraint(Sketcher.Constraint("Symmetric", 37, 2, 69, 2, -2))
sketch1.addConstraint(Sketcher.Constraint("Symmetric", 35, 2, 71, 2, -2))
sketch1.addConstraint(Sketcher.Constraint("Symmetric", 34, 2, 72, 2, -2))
sketch1.addConstraint(Sketcher.Constraint("PointOnObject", 11, 2, -2))
sketch1.addConstraint(Sketcher.Constraint("PointOnObject", 32, 2, -1))
sketch1.addConstraint(Sketcher.Constraint("Parallel", 8, 11))
sketch1.addConstraint(Sketcher.Constraint("Parallel", 9, 12))
sketch1.addConstraint(Sketcher.Constraint("Parallel", 11, 14))
sketch1.addConstraint(Sketcher.Constraint("Perpendicular", 6, 17))
sketch1.addConstraint(Sketcher.Constraint("Parallel", 17, 27))
sketch1.addConstraint(Sketcher.Constraint("Perpendicular", 14, 29))
sketch1.addConstraint(Sketcher.Constraint("Perpendicular", 15, 30))
sketch1.addConstraint(Sketcher.Constraint("Parallel", 29, 32))
sketch1.addConstraint(Sketcher.Constraint("Parallel", 30, 33))
sketch1.addConstraint(Sketcher.Constraint("Parallel", 33, 36))
sketch1.addConstraint(Sketcher.Constraint("Perpendicular", 27, 38))
sketch1.addConstraint(Sketcher.Constraint("Perpendicular", 35, 50))
sketch1.addConstraint(Sketcher.Constraint("Parallel", 50, 53))
sketch1.addConstraint(Sketcher.Constraint("Parallel", 53, 56))
sketch1.addConstraint(Sketcher.Constraint("Perpendicular", 48, 59))
sketch1.addConstraint(Sketcher.Constraint("Perpendicular", 56, 71))
sketch1.addConstraint(Sketcher.Constraint("Parallel", 71, 74))
sketch1.addConstraint(Sketcher.Constraint("Parallel", 74, 77))
sketch1.addConstraint(Sketcher.Constraint("Perpendicular", 69, 80))
sketch1.addConstraint(Sketcher.Constraint("Horizontal", 7, 2, 9, 2))
sketch1.addConstraint(Sketcher.Constraint("Vertical", 28, 2, 30, 2))
sketch1.addConstraint(Sketcher.Constraint("Equal", 63, 0))
sketch1.addConstraint(Sketcher.Constraint("Equal", 83, 3))
sketch1.addConstraint(Sketcher.Constraint("Equal", 81, 5))
sketch1.addConstraint(Sketcher.Constraint("Equal", 61, 25))
sketch1.addConstraint(Sketcher.Constraint("Equal", 58, 28))
sketch1.addConstraint(Sketcher.Constraint("Equal", 55, 31))
sketch1.addConstraint(Sketcher.Constraint("Equal", 17, 27))
sketch1.addConstraint(Sketcher.Constraint("Equal", 15, 29))
sketch1.addConstraint(Sketcher.Constraint("Equal", 12, 32))
sketch1.addConstraint(Sketcher.Constraint("Diameter", 84, 7.0))
sketch1.addConstraint(Sketcher.Constraint("Radius", 1, 3.0))
sketch1.addConstraint(Sketcher.Constraint("DistanceX", 2, 1, 2, 2, 22.0))
sketch1.addConstraint(Sketcher.Constraint("DistanceX", 4, 2, 4, 1, 5.0))
sketch1.addConstraint(Sketcher.Constraint("DistanceX", 24, 2, 24, 1, 6.0))
sketch1.addConstraint(Sketcher.Constraint("Angle", 8, Q("30.0007 deg")))
sketch1.addConstraint(Sketcher.Constraint("DistanceX", 1, 3, -1, 1, 27.0))
sketch1.addConstraint(Sketcher.Constraint("DistanceX", 84, 3, -1, 1, 20.0))
sketch1.addConstraint(Sketcher.Constraint("DistanceY", 84, 3, -1, 1, 20.0))
sketch1.addConstraint(Sketcher.Constraint("DistanceY", 6, 2, -1, 1, 17.0))
sketch1.addConstraint(Sketcher.Constraint("DistanceX", 8, 2, -1, 1, 3.0))
sketch1.addConstraint(Sketcher.Constraint("Distance", 8, 0.4))
sketch1.addConstraint(Sketcher.Constraint("Distance", 11, 1.4))
sketch1.addConstraint(Sketcher.Constraint("DistanceX", 7, 1, 7, 2, 4.037))
pad1 = body.newObject("PartDesign::Pad", "Pad")
pad1.Profile = sketch1
pad1.Length = 2667
pad1.Reversed = True

# Sketch on XY plane
sketch2 = body.newObject("Sketcher::SketchObject", "Sketch001")
sketch2.AttachmentSupport = (doc.getObject("XY_Plane"), [""])
sketch2.MapMode = "FlatFace"
sketch2.AttachmentOffset = App.Placement(Vector(0, 0, -2667), App.Rotation())
sketch2.addGeometry(Part.Circle(Vector(0, 0, 0), Vector(0, 0, 1), 5), False)
sketch2.addConstraint(Sketcher.Constraint("Coincident", 0, 3, -1, 1))
sketch2.addConstraint(Sketcher.Constraint("Diameter", 0, 10.5))
doc.recompute()
hole = body.newObject("PartDesign::Hole", "Hole")
hole.Profile = sketch2
hole.ThreadType = "None"
hole.Diameter = 10.5
hole.DepthType = "Dimension"
hole.Depth = 1000
hole.DrillPoint = "Flat"
hole.Reversed = True

doc.recompute()
